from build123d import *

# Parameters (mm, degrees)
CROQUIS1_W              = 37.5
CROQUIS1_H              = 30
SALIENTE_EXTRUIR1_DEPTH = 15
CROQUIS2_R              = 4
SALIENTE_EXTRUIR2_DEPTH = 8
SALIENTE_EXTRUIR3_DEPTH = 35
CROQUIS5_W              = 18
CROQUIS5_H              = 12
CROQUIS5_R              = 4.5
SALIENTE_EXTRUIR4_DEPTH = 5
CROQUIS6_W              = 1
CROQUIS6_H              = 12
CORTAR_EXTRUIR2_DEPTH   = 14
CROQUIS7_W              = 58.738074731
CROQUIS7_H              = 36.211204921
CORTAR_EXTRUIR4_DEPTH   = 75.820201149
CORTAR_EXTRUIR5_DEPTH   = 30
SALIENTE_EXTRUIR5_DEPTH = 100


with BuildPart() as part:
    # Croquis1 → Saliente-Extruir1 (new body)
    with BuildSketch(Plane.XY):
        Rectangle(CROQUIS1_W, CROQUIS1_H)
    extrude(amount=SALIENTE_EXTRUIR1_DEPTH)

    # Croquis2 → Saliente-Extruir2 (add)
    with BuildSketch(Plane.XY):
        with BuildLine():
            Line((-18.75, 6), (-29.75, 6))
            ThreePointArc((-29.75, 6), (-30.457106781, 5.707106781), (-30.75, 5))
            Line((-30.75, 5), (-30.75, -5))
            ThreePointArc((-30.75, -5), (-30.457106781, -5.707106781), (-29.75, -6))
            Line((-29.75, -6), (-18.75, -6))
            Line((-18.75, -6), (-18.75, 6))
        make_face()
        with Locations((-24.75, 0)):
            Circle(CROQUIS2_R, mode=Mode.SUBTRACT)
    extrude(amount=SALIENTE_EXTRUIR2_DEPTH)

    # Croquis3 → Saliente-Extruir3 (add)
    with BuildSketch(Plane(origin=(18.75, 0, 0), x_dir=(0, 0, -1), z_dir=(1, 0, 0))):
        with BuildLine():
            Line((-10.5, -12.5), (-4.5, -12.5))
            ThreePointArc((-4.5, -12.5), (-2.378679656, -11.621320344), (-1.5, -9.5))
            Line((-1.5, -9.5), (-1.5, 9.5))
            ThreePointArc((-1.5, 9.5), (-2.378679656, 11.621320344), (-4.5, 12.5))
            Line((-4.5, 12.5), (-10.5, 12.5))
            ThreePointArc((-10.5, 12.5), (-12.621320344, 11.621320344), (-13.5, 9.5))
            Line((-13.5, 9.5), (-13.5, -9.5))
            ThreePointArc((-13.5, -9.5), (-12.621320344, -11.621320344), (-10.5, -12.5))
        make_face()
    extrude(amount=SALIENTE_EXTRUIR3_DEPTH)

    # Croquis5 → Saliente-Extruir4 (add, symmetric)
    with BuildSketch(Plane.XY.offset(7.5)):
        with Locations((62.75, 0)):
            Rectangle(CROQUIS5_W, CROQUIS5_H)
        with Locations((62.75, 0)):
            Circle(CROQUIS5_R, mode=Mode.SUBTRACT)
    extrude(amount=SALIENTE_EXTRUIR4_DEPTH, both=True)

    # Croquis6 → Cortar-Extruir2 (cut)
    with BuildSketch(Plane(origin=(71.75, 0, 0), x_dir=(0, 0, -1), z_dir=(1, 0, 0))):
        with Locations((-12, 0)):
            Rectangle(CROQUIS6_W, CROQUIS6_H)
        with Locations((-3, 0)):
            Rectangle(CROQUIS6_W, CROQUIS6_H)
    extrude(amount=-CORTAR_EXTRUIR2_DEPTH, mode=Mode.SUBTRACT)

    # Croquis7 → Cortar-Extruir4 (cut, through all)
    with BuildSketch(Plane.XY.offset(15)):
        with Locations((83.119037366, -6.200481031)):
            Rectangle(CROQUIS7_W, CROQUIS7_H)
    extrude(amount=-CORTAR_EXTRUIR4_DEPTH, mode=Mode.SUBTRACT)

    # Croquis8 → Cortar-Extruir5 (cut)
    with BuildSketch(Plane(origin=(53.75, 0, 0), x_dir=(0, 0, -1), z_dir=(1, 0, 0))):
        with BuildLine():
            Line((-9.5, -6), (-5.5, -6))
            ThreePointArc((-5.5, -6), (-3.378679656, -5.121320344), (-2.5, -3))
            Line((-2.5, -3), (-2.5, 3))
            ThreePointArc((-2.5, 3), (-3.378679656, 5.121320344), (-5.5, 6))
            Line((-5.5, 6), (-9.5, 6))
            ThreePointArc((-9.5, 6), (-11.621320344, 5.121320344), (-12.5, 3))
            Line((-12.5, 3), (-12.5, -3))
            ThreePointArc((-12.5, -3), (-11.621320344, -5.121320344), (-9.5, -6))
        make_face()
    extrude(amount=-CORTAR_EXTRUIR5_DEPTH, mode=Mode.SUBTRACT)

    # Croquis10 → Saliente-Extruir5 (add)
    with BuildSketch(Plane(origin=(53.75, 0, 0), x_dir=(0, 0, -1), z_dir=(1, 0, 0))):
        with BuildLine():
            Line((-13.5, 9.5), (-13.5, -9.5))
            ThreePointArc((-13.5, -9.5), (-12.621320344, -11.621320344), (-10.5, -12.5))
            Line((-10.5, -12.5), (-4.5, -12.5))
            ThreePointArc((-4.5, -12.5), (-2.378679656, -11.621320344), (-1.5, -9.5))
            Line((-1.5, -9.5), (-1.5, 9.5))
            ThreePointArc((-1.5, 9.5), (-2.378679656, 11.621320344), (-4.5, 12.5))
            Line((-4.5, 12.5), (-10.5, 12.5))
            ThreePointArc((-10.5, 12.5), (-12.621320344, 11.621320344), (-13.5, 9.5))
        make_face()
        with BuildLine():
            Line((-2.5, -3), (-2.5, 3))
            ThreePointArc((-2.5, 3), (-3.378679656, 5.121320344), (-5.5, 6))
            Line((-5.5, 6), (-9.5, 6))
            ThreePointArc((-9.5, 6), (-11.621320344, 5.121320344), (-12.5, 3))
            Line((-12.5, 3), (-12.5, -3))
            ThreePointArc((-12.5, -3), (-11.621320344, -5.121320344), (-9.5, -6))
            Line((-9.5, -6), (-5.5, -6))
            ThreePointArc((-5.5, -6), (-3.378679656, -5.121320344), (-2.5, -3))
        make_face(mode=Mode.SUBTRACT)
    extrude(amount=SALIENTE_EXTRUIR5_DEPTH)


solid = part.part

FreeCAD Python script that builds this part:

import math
import FreeCAD as App
import Part
import Sketcher
from FreeCAD import Vector

doc = App.newDocument("Part")
body = doc.addObject("PartDesign::Body", "Body")

sketch1 = body.newObject("Sketcher::SketchObject", "Sketch")
sketch1.AttachmentSupport = (doc.getObject("XY_Plane"), [""])
sketch1.MapMode = "FlatFace"
sketch1.addGeometry(Part.LineSegment(Vector(-18.75, 15, 0), Vector(-18.75, -15, 0)), False)
sketch1.addGeometry(Part.LineSegment(Vector(-18.75, -15, 0), Vector(18.75, -15, 0)), False)
sketch1.addGeometry(Part.LineSegment(Vector(18.75, -15, 0), Vector(18.75, 15, 0)), False)
sketch1.addGeometry(Part.LineSegment(Vector(18.75, 15, 0), Vector(-18.75, 15, 0)), False)
sketch1.addConstraint(Sketcher.Constraint("Coincident", 0, 2, 1, 1))
sketch1.addConstraint(Sketcher.Constraint("Coincident", 1, 2, 2, 1))
sketch1.addConstraint(Sketcher.Constraint("Coincident", 2, 2, 3, 1))
sketch1.addConstraint(Sketcher.Constraint("Coincident", 3, 2, 0, 1))
sketch1.addConstraint(Sketcher.Constraint("Vertical", 0))
sketch1.addConstraint(Sketcher.Constraint("Horizontal", 1))
sketch1.addConstraint(Sketcher.Constraint("Vertical", 2))
sketch1.addConstraint(Sketcher.Constraint("Horizontal", 3))
sketch1.addConstraint(Sketcher.Constraint("Symmetric", 0, 2, 2, 2, -1, 1))
sketch1.addConstraint(Sketcher.Constraint("DistanceY", 0, 2, 0, 1, 30.0))
sketch1.addConstraint(Sketcher.Constraint("DistanceX", 1, 1, 1, 2, 37.5))
pad1 = body.newObject("PartDesign::Pad", "Pad")
pad1.Profile = sketch1
pad1.Length = 15

sketch2 = body.newObject("Sketcher::SketchObject", "Sketch001")
sketch2.AttachmentSupport = (doc.getObject("XY_Plane"), [""])
sketch2.MapMode = "FlatFace"
sketch2.addGeometry(Part.LineSegment(Vector(-18.75, 6, 0), Vector(-29.75, 6, 0)), False)
sketch2.addGeometry(Part.ArcOfCircle(Part.Circle(Vector(-29.75, 5, 0), Vector(0, 0, 1), 1), math.radians(90), math.radians(180)), False)
sketch2.addGeometry(Part.LineSegment(Vector(-30.75, 5, 0), Vector(-30.75, -5, 0)), False)
sketch2.addGeometry(Part.ArcOfCircle(Part.Circle(Vector(-29.75, -5, 0), Vector(0, 0, 1), 1), math.radians(-180), math.radians(-90)), False)
sketch2.addGeometry(Part.LineSegment(Vector(-29.75, -6, 0), Vector(-18.75, -6, 0)), False)
sketch2.addGeometry(Part.LineSegment(Vector(-18.75, -6, 0), Vector(-18.75, 6, 0)), False)
sketch2.addGeometry(Part.Circle(Vector(-24.75, 0, 0), Vector(0, 0, 1), 4), False)
sketch2.addConstraint(Sketcher.Constraint("Tangent", 0, 2, 1, 1))
sketch2.addConstraint(Sketcher.Constraint("Tangent", 1, 2, 2, 1))
sketch2.addConstraint(Sketcher.Constraint("Tangent", 2, 2, 3, 1))
sketch2.addConstraint(Sketcher.Constraint("Tangent", 3, 2, 4, 1))
sketch2.addConstraint(Sketcher.Constraint("Coincident", 4, 2, 5, 1))
sketch2.addConstraint(Sketcher.Constraint("Coincident", 5, 2, 0, 1))
sketch2.addConstraint(Sketcher.Constraint("Horizontal", 0))
sketch2.addConstraint(Sketcher.Constraint("Vertical", 2))
sketch2.addConstraint(Sketcher.Constraint("Horizontal", 4))
sketch2.addConstraint(Sketcher.Constraint("Vertical", 5))
sketch2.addConstraint(Sketcher.Constraint("Equal", 1, 3))
sketch2.addConstraint(Sketcher.Constraint("PointOnObject", 6, 3, -1))
sketch2.addConstraint(Sketcher.Constraint("Diameter", 6, 8.0))
sketch2.addConstraint(Sketcher.Constraint("Radius", 1, 1.0))
sketch2.addConstraint(Sketcher.Constraint("DistanceX", 0, 2, 0, 1, 11.0))
sketch2.addConstraint(Sketcher.Constraint("DistanceY", 2, 2, 2, 1, 10.0))
sketch2.addConstraint(Sketcher.Constraint("DistanceY", -1, 1, 1, 3, 5.0))
sketch2.addConstraint(Sketcher.Constraint("DistanceX", 1, 3, 6, 3, 5.0))
sketch2.addConstraint(Sketcher.Constraint("DistanceX", 1, 3, -1, 1, 29.75))
pad2 = body.newObject("PartDesign::Pad", "Pad001")
pad2.Profile = sketch2
pad2.Length = 8

sketch3 = body.newObject("Sketcher::SketchObject", "Sketch002")
sketch3.AttachmentSupport = (doc.getObject("YZ_Plane"), [""])
sketch3.MapMode = "FlatFace"
sketch3.AttachmentOffset = App.Placement(Vector(0, 0, 18.75), App.Rotation())
sketch3.addGeometry(Part.LineSegment(Vector(-12.5, 10.5, 0), Vector(-12.5, 4.5, 0)), False)
sketch3.addGeometry(Part.ArcOfCircle(Part.Circle(Vector(-9.5, 4.5, 0), Vector(0, 0, 1), 3), math.radians(180), math.radians(270)), False)
sketch3.addGeometry(Part.LineSegment(Vector(-9.5, 1.5, 0), Vector(9.5, 1.5, 0)), False)
sketch3.addGeometry(Part.ArcOfCircle(Part.Circle(Vector(9.5, 4.5, 0), Vector(0, 0, 1), 3), math.radians(-90), math.radians(0)), False)
sketch3.addGeometry(Part.LineSegment(Vector(12.5, 4.5, 0), Vector(12.5, 10.5, 0)), False)
sketch3.addGeometry(Part.ArcOfCircle(Part.Circle(Vector(9.5, 10.5, 0), Vector(0, 0, 1), 3), math.radians(0), math.radians(90)), False)
sketch3.addGeometry(Part.LineSegment(Vector(9.5, 13.5, 0), Vector(-9.5, 13.5, 0)), False)
sketch3.addGeometry(Part.ArcOfCircle(Part.Circle(Vector(-9.5, 10.5, 0), Vector(0, 0, 1), 3), math.radians(90), math.radians(180)), False)
sketch3.addConstraint(Sketcher.Constraint("Tangent", 0, 2, 1, 1))
sketch3.addConstraint(Sketcher.Constraint("Tangent", 1, 2, 2, 1))
sketch3.addConstraint(Sketcher.Constraint("Tangent", 2, 2, 3, 1))
sketch3.addConstraint(Sketcher.Constraint("Tangent", 3, 2, 4, 1))
sketch3.addConstraint(Sketcher.Constraint("Tangent", 4, 2, 5, 1))
sketch3.addConstraint(Sketcher.Constraint("Tangent", 5, 2, 6, 1))
sketch3.addConstraint(Sketcher.Constraint("Tangent", 6, 2, 7, 1))
sketch3.addConstraint(Sketcher.Constraint("Tangent", 7, 2, 0, 1))
sketch3.addConstraint(Sketcher.Constraint("Vertical", 0))
sketch3.addConstraint(Sketcher.Constraint("Horizontal", 2))
sketch3.addConstraint(Sketcher.Constraint("Vertical", 4))
sketch3.addConstraint(Sketcher.Constraint("Horizontal", 6))
sketch3.addConstraint(Sketcher.Constraint("Equal", 1, 3))
sketch3.addConstraint(Sketcher.Constraint("Equal", 3, 5))
sketch3.addConstraint(Sketcher.Constraint("Equal", 5, 7))
sketch3.addConstraint(Sketcher.Constraint("Radius", 1, 3.0))
sketch3.addConstraint(Sketcher.Constraint("DistanceX", 2, 1, 2, 2, 19.0))
sketch3.addConstraint(Sketcher.Constraint("DistanceY", 0, 2, 0, 1, 6.0))
sketch3.addConstraint(Sketcher.Constraint("DistanceX", 1, 3, -1, 1, 9.5))
sketch3.addConstraint(Sketcher.Constraint("DistanceY", -1, 1, 1, 3, 4.5))
pad3 = body.newObject("PartDesign::Pad", "Pad002")
pad3.Profile = sketch3
pad3.Length = 35

sketch4 = body.newObject("Sketcher::SketchObject", "Sketch003")
sketch4.AttachmentSupport = (doc.getObject("XY_Plane"), [""])
sketch4.MapMode = "FlatFace"
sketch4.AttachmentOffset = App.Placement(Vector(0, 0, 7.5), App.Rotation())
sketch4.addGeometry(Part.LineSegment(Vector(53.75, 6, 0), Vector(53.75, -6, 0)), False)
sketch4.addGeometry(Part.LineSegment(Vector(53.75, -6, 0), Vector(71.75, -6, 0)), False)
sketch4.addGeometry(Part.LineSegment(Vector(71.75, -6, 0), Vector(71.75, 6, 0)), False)
sketch4.addGeometry(Part.LineSegment(Vector(71.75, 6, 0), Vector(53.75, 6, 0)), False)
sketch4.addGeometry(Part.Circle(Vector(62.75, 0, 0), Vector(0, 0, 1), 4.5), False)
sketch4.addConstraint(Sketcher.Constraint("Coincident", 0, 2, 1, 1))
sketch4.addConstraint(Sketcher.Constraint("Coincident", 1, 2, 2, 1))
sketch4.addConstraint(Sketcher.Constraint("Coincident", 2, 2, 3, 1))
sketch4.addConstraint(Sketcher.Constraint("Coincident", 3, 2, 0, 1))
sketch4.addConstraint(Sketcher.Constraint("Vertical", 0))
sketch4.addConstraint(Sketcher.Constraint("Horizontal", 1))
sketch4.addConstraint(Sketcher.Constraint("Vertical", 2))
sketch4.addConstraint(Sketcher.Constraint("Horizontal", 3))
sketch4.addConstraint(Sketcher.Constraint("PointOnObject", 4, 3, -1))
sketch4.addConstraint(Sketcher.Constraint("Diameter", 4, 9.0))
sketch4.addConstraint(Sketcher.Constraint("DistanceX", 1, 1, 1, 2, 18.0))
sketch4.addConstraint(Sketcher.Constraint("DistanceY", 0, 2, 0, 1, 12.0))
sketch4.addConstraint(Sketcher.Constraint("DistanceY", 0, 2, -1, 1, 6.0))
sketch4.addConstraint(Sketcher.Constraint("DistanceX", 0, 2, 4, 3, 9.0))
sketch4.addConstraint(Sketcher.Constraint("DistanceX", -1, 1, 4, 3, 62.75))
pad4 = body.newObject("PartDesign::Pad", "Pad003")
pad4.Profile = sketch4
pad4.Length = 10
pad4.Midplane = True

sketch5 = body.newObject("Sketcher::SketchObject", "Sketch004")
sketch5.AttachmentSupport = (doc.getObject("YZ_Plane"), [""])
sketch5.MapMode = "FlatFace"
sketch5.AttachmentOffset = App.Placement(Vector(0, 0, 71.75), App.Rotation())
sketch5.addGeometry(Part.LineSegment(Vector(6, 12.5, 0), Vector(-6, 12.5, 0)), False)
sketch5.addGeometry(Part.LineSegment(Vector(-6, 12.5, 0), Vector(-6, 11.5, 0)), False)
sketch5.addGeometry(Part.LineSegment(Vector(-6, 11.5, 0), Vector(6, 11.5, 0)), False)
sketch5.addGeometry(Part.LineSegment(Vector(6, 11.5, 0), Vector(6, 12.5, 0)), False)
sketch5.addGeometry(Part.LineSegment(Vector(6, 3.5, 0), Vector(-6, 3.5, 0)), False)
sketch5.addGeometry(Part.LineSegment(Vector(-6, 3.5, 0), Vector(-6, 2.5, 0)), False)
sketch5.addGeometry(Part.LineSegment(Vector(-6, 2.5, 0), Vector(6, 2.5, 0)), False)
sketch5.addGeometry(Part.LineSegment(Vector(6, 2.5, 0), Vector(6, 3.5, 0)), False)
sketch5.addConstraint(Sketcher.Constraint("Coincident", 0, 2, 1, 1))
sketch5.addConstraint(Sketcher.Constraint("Coincident", 1, 2, 2, 1))
sketch5.addConstraint(Sketcher.Constraint("Coincident", 2, 2, 3, 1))
sketch5.addConstraint(Sketcher.Constraint("Coincident", 3, 2, 0, 1))
sketch5.addConstraint(Sketcher.Constraint("Coincident", 4, 2, 5, 1))
sketch5.addConstraint(Sketcher.Constraint("Coincident", 5, 2, 6, 1))
sketch5.addConstraint(Sketcher.Constraint("Coincident", 6, 2, 7, 1))
sketch5.addConstraint(Sketcher.Constraint("Coincident", 7, 2, 4, 1))
sketch5.addConstraint(Sketcher.Constraint("Horizontal", 0))
sketch5.addConstraint(Sketcher.Constraint("Vertical", 1))
sketch5.addConstraint(Sketcher.Constraint("Horizontal", 2))
sketch5.addConstraint(Sketcher.Constraint("Vertical", 3))
sketch5.addConstraint(Sketcher.Constraint("Horizontal", 4))
sketch5.addConstraint(Sketcher.Constraint("Vertical", 5))
sketch5.addConstraint(Sketcher.Constraint("Horizontal", 6))
sketch5.addConstraint(Sketcher.Constraint("Vertical", 7))
sketch5.addConstraint(Sketcher.Constraint("Vertical", 1, 2, 4, 2))
sketch5.addConstraint(Sketcher.Constraint("Vertical", 3, 2, 6, 2))
sketch5.addConstraint(Sketcher.Constraint("Equal", 3, 5))
sketch5.addConstraint(Sketcher.Constraint("DistanceX", 0, 2, 0, 1, 12.0))
sketch5.addConstraint(Sketcher.Constraint("DistanceY", 1, 2, 1, 1, 1.0))
sketch5.addConstraint(Sketcher.Constraint("DistanceX", 0, 2, -1, 1, 6.0))
sketch5.addConstraint(Sketcher.Constraint("DistanceY", 4, 2, 1, 2, 8.0))
sketch5.addConstraint(Sketcher.Constraint("DistanceY", -1, 1, 0, 2, 12.5))
pocket1 = body.newObject("PartDesign::Pocket", "Pocket")
pocket1.Profile = sketch5
pocket1.Length = 14

sketch6 = body.newObject("Sketcher::SketchObject", "Sketch005")
sketch6.AttachmentSupport = (doc.getObject("XY_Plane"), [""])
sketch6.MapMode = "FlatFace"
sketch6.AttachmentOffset = App.Placement(Vector(0, 0, 15), App.Rotation())
sketch6.addGeometry(Part.LineSegment(Vector(53.75, 11.905121, 0), Vector(53.75, -24.306083, 0)), False)
sketch6.addGeometry(Part.LineSegment(Vector(53.75, -24.306083, 0), Vector(112.488075, -24.306083, 0)), False)
sketch6.addGeometry(Part.LineSegment(Vector(112.488075, -24.306083, 0), Vector(112.488075, 11.905121, 0)), False)
sketch6.addGeometry(Part.LineSegment(Vector(112.488075, 11.905121, 0), Vector(53.75, 11.905121, 0)), False)
sketch6.addConstraint(Sketcher.Constraint("Coincident", 0, 2, 1, 1))
sketch6.addConstraint(Sketcher.Constraint("Coincident", 1, 2, 2, 1))
sketch6.addConstraint(Sketcher.Constraint("Coincident", 2, 2, 3, 1))
sketch6.addConstraint(Sketcher.Constraint("Coincident", 3, 2, 0, 1))
sketch6.addConstraint(Sketcher.Constraint("Vertical", 0))
sketch6.addConstraint(Sketcher.Constraint("Horizontal", 1))
sketch6.addConstraint(Sketcher.Constraint("Vertical", 2))
sketch6.addConstraint(Sketcher.Constraint("Horizontal", 3))
sketch6.addConstraint(Sketcher.Constraint("DistanceX", -1, 1, 0, 2, 53.75))
sketch6.addConstraint(Sketcher.Constraint("DistanceX", 1, 1, 1, 2, 58.738075))
sketch6.addConstraint(Sketcher.Constraint("DistanceY", 0, 2, 0, 1, 36.211205))
sketch6.addConstraint(Sketcher.Constraint("DistanceY", -1, 1, 2, 2, 11.905121))
pocket2 = body.newObject("PartDesign::Pocket", "Pocket001")
pocket2.Profile = sketch6
pocket2.Type = "ThroughAll"

sketch7 = body.newObject("Sketcher::SketchObject", "Sketch006")
sketch7.AttachmentSupport = (doc.getObject("YZ_Plane"), [""])
sketch7.MapMode = "FlatFace"
sketch7.AttachmentOffset = App.Placement(Vector(0, 0, 53.75), App.Rotation())
sketch7.addGeometry(Part.LineSegment(Vector(-6, 9.5, 0), Vector(-6, 5.5, 0)), False)
sketch7.addGeometry(Part.ArcOfCircle(Part.Circle(Vector(-3, 5.5, 0), Vector(0, 0, 1), 3), math.radians(180), math.radians(270)), False)
sketch7.addGeometry(Part.LineSegment(Vector(-3, 2.5, 0), Vector(3, 2.5, 0)), False)
sketch7.addGeometry(Part.ArcOfCircle(Part.Circle(Vector(3, 5.5, 0), Vector(0, 0, 1), 3), math.radians(-90), math.radians(0)), False)
sketch7.addGeometry(Part.LineSegment(Vector(6, 5.5, 0), Vector(6, 9.5, 0)), False)
sketch7.addGeometry(Part.ArcOfCircle(Part.Circle(Vector(3, 9.5, 0), Vector(0, 0, 1), 3), math.radians(0), math.radians(90)), False)
sketch7.addGeometry(Part.LineSegment(Vector(3, 12.5, 0), Vector(-3, 12.5, 0)), False)
sketch7.addGeometry(Part.ArcOfCircle(Part.Circle(Vector(-3, 9.5, 0), Vector(0, 0, 1), 3), math.radians(90), math.radians(180)), False)
sketch7.addConstraint(Sketcher.Constraint("Tangent", 0, 2, 1, 1))
sketch7.addConstraint(Sketcher.Constraint("Tangent", 1, 2, 2, 1))
sketch7.addConstraint(Sketcher.Constraint("Tangent", 2, 2, 3, 1))
sketch7.addConstraint(Sketcher.Constraint("Tangent", 3, 2, 4, 1))
sketch7.addConstraint(Sketcher.Constraint("Tangent", 4, 2, 5, 1))
sketch7.addConstraint(Sketcher.Constraint("Tangent", 5, 2, 6, 1))
sketch7.addConstraint(Sketcher.Constraint("Tangent", 6, 2, 7, 1))
sketch7.addConstraint(Sketcher.Constraint("Tangent", 7, 2, 0, 1))
sketch7.addConstraint(Sketcher.Constraint("Vertical", 0))
sketch7.addConstraint(Sketcher.Constraint("Horizontal", 2))
sketch7.addConstraint(Sketcher.Constraint("Vertical", 4))
sketch7.addConstraint(Sketcher.Constraint("Horizontal", 6))
sketch7.addConstraint(Sketcher.Constraint("Equal", 1, 3))
sketch7.addConstraint(Sketcher.Constraint("Equal", 3, 5))
sketch7.addConstraint(Sketcher.Constraint("Equal", 5, 7))
sketch7.addConstraint(Sketcher.Constraint("Radius", 1, 3.0))
sketch7.addConstraint(Sketcher.Constraint("DistanceX", 2, 1, 2, 2, 6.0))
sketch7.addConstraint(Sketcher.Constraint("DistanceY", 0, 2, 0, 1, 4.0))
sketch7.addConstraint(Sketcher.Constraint("DistanceX", 1, 3, -1, 1, 3.0))
sketch7.addConstraint(Sketcher.Constraint("DistanceY", -1, 1, 1, 3, 5.5))
pocket3 = body.newObject("PartDesign::Pocket", "Pocket002")
pocket3.Profile = sketch7
pocket3.Length = 30

sketch8 = body.newObject("Sketcher::SketchObject", "Sketch007")
sketch8.AttachmentSupport = (doc.getObject("YZ_Plane"), [""])
sketch8.MapMode = "FlatFace"
sketch8.AttachmentOffset = App.Placement(Vector(0, 0, 53.75), App.Rotation())
sketch8.addGeometry(Part.LineSegment(Vector(9.5, 13.5, 0), Vector(-9.5, 13.5, 0)), False)
sketch8.addGeometry(Part.ArcOfCircle(Part.Circle(Vector(-9.5, 10.5, 0), Vector(0, 0, 1), 3), math.radians(90), math.radians(180)), False)
sketch8.addGeometry(Part.LineSegment(Vector(-12.5, 10.5, 0), Vector(-12.5, 4.5, 0)), False)
sketch8.addGeometry(Part.ArcOfCircle(Part.Circle(Vector(-9.5, 4.5, 0), Vector(0, 0, 1), 3), math.radians(180), math.radians(270)), False)
sketch8.addGeometry(Part.LineSegment(Vector(-9.5, 1.5, 0), Vector(9.5, 1.5, 0)), False)
sketch8.addGeometry(Part.ArcOfCircle(Part.Circle(Vector(9.5, 4.5, 0), Vector(0, 0, 1), 3), math.radians(-90), math.radians(0)), False)
sketch8.addGeometry(Part.LineSegment(Vector(12.5, 4.5, 0), Vector(12.5, 10.5, 0)), False)
sketch8.addGeometry(Part.ArcOfCircle(Part.Circle(Vector(9.5, 10.5, 0), Vector(0, 0, 1), 3), math.radians(0), math.radians(90)), False)
sketch8.addGeometry(Part.LineSegment(Vector(3, 2.5, 0), Vector(-3, 2.5, 0)), False)
sketch8.addGeometry(Part.ArcOfCircle(Part.Circle(Vector(-3, 5.5, 0), Vector(0, 0, 1), 3), math.radians(180), math.radians(270)), False)
sketch8.addGeometry(Part.LineSegment(Vector(-6, 5.5, 0), Vector(-6, 9.5, 0)), False)
sketch8.addGeometry(Part.ArcOfCircle(Part.Circle(Vector(-3, 9.5, 0), Vector(0, 0, 1), 3), math.radians(90), math.radians(180)), False)
sketch8.addGeometry(Part.LineSegment(Vector(-3, 12.5, 0), Vector(3, 12.5, 0)), False)
sketch8.addGeometry(Part.ArcOfCircle(Part.Circle(Vector(3, 9.5, 0), Vector(0, 0, 1), 3), math.radians(0), math.radians(90)), False)
sketch8.addGeometry(Part.LineSegment(Vector(6, 9.5, 0), Vector(6, 5.5, 0)), False)
sketch8.addGeometry(Part.ArcOfCircle(Part.Circle(Vector(3, 5.5, 0), Vector(0, 0, 1), 3), math.radians(-90), math.radians(0)), False)
sketch8.addConstraint(Sketcher.Constraint("Tangent", 0, 2, 1, 1))
sketch8.addConstraint(Sketcher.Constraint("Tangent", 1, 2, 2, 1))
sketch8.addConstraint(Sketcher.Constraint("Tangent", 2, 2, 3, 1))
sketch8.addConstraint(Sketcher.Constraint("Tangent", 3, 2, 4, 1))
sketch8.addConstraint(Sketcher.Constraint("Tangent", 4, 2, 5, 1))
sketch8.addConstraint(Sketcher.Constraint("Tangent", 5, 2, 6, 1))
sketch8.addConstraint(Sketcher.Constraint("Tangent", 6, 2, 7, 1))
sketch8.addConstraint(Sketcher.Constraint("Tangent", 7, 2, 0, 1))
sketch8.addConstraint(Sketcher.Constraint("Tangent", 8, 2, 9, 2))
sketch8.addConstraint(Sketcher.Constraint("Tangent", 9, 1, 10, 1))
sketch8.addConstraint(Sketcher.Constraint("Tangent", 10, 2, 11, 2))
sketch8.addConstraint(Sketcher.Constraint("Tangent", 11, 1, 12, 1))
sketch8.addConstraint(Sketcher.Constraint("Tangent", 12, 2, 13, 2))
sketch8.addConstraint(Sketcher.Constraint("Tangent", 13, 1, 14, 1))
sketch8.addConstraint(Sketcher.Constraint("Tangent", 14, 2, 15, 2))
sketch8.addConstraint(Sketcher.Constraint("Tangent", 15, 1, 8, 1))
sketch8.addConstraint(Sketcher.Constraint("Horizontal", 0))
sketch8.addConstraint(Sketcher.Constraint("Vertical", 2))
sketch8.addConstraint(Sketcher.Constraint("Horizontal", 4))
sketch8.addConstraint(Sketcher.Constraint("Vertical", 6))
sketch8.addConstraint(Sketcher.Constraint("Horizontal", 8))
sketch8.addConstraint(Sketcher.Constraint("Vertical", 10))
sketch8.addConstraint(Sketcher.Constraint("Horizontal", 12))
sketch8.addConstraint(Sketcher.Constraint("Vertical", 14))
sketch8.addConstraint(Sketcher.Constraint("Equal", 1, 3))
sketch8.addConstraint(Sketcher.Constraint("Equal", 3, 5))
sketch8.addConstraint(Sketcher.Constraint("Equal", 5, 7))
sketch8.addConstraint(Sketcher.Constraint("Equal", 7, 9))
sketch8.addConstraint(Sketcher.Constraint("Equal", 9, 11))
sketch8.addConstraint(Sketcher.Constraint("Equal", 11, 13))
sketch8.addConstraint(Sketcher.Constraint("Equal", 13, 15))
sketch8.addConstraint(Sketcher.Constraint("Equal", 12, 2))
sketch8.addConstraint(Sketcher.Constraint("Radius", 1, 3.0))
sketch8.addConstraint(Sketcher.Constraint("DistanceX", 0, 2, 0, 1, 19.0))
sketch8.addConstraint(Sketcher.Constraint("DistanceX", 8, 2, 8, 1, 6.0))
sketch8.addConstraint(Sketcher.Constraint("DistanceY", 10, 1, 10, 2, 4.0))
sketch8.addConstraint(Sketcher.Constraint("DistanceX", 9, 3, -1, 1, 3.0))
sketch8.addConstraint(Sketcher.Constraint("DistanceY", 3, 3, 9, 3, 1.0))
sketch8.addConstraint(Sketcher.Constraint("DistanceX", 1, 3, -1, 1, 9.5))
sketch8.addConstraint(Sketcher.Constraint("DistanceY", -1, 1, 1, 3, 10.5))
pad5 = body.newObject("PartDesign::Pad", "Pad004")
pad5.Profile = sketch8
pad5.Length = 100

doc.recompute()
